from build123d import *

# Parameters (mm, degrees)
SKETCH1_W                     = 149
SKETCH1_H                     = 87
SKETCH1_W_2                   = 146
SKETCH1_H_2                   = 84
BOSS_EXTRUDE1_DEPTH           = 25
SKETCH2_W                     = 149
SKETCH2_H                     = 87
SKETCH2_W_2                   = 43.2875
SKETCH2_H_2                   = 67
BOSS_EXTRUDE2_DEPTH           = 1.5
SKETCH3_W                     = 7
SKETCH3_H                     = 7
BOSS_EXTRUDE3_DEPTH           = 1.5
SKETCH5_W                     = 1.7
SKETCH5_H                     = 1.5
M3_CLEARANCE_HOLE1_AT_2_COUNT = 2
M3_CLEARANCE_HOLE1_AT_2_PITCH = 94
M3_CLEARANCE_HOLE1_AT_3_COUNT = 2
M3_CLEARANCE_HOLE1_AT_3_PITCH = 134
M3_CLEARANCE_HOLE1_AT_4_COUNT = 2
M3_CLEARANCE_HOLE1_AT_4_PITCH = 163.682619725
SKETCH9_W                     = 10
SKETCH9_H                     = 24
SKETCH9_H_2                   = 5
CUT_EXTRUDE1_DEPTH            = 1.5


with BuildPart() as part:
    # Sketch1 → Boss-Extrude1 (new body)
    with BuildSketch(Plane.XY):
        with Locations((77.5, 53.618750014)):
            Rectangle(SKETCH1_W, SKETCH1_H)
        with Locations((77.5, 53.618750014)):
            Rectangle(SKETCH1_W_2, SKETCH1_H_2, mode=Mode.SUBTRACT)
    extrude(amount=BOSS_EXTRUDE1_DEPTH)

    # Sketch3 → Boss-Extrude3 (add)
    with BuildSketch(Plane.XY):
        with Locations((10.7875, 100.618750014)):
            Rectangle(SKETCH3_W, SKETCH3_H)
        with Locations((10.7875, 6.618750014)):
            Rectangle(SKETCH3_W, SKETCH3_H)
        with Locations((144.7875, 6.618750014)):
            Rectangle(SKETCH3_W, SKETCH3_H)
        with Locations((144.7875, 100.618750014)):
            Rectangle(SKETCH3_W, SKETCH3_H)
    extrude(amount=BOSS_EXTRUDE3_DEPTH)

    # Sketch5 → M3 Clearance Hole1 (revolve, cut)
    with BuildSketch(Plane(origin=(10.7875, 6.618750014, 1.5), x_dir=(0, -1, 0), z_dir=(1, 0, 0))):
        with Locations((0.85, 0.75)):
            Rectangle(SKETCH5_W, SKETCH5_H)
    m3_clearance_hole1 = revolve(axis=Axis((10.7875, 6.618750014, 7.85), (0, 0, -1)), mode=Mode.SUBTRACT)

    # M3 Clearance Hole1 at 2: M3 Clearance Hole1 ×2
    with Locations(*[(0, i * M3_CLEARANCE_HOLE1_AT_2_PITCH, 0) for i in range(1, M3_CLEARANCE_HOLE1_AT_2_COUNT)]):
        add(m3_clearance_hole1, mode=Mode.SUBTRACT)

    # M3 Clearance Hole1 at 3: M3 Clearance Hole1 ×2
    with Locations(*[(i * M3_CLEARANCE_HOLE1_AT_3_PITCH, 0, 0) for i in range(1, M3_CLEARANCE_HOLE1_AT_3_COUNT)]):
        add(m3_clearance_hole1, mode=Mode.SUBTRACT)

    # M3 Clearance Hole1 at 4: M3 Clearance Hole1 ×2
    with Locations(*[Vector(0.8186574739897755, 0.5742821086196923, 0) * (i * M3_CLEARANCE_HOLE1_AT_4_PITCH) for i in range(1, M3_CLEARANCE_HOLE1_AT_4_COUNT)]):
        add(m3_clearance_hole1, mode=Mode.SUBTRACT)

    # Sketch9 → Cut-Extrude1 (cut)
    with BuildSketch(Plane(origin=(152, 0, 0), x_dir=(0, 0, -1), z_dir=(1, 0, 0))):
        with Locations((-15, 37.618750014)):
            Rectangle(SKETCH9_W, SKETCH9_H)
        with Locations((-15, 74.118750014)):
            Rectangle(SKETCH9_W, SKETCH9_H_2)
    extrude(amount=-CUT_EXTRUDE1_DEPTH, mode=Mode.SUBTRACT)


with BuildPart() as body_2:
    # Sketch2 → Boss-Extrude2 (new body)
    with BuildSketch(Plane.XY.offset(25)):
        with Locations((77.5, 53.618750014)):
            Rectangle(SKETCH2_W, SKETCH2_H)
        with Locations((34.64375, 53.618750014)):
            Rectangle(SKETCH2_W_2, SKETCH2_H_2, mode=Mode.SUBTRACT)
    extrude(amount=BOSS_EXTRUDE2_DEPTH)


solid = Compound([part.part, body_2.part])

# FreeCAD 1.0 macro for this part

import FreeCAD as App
import Part
import Sketcher

V = App.Vector
Q = App.Units.Quantity


def add_polygon(sketch, points):
    """Adds a closed chain of lines whose ends are joined by coincident constraints."""
    first, n = sketch.GeometryCount, len(points)
    for a, b in zip(points, points[1:] + points[:1]):
        sketch.addGeometry(Part.LineSegment(App.Vector(*a, 0), App.Vector(*b, 0)), False)
    for i in range(n):
        sketch.addConstraint(Sketcher.Constraint("Coincident", first + i, 2, first + (i + 1) % n, 1))

doc = App.newDocument("Part")
body = doc.addObject("PartDesign::Body", "Body")

# Sketch on XY plane
sketch1 = doc.addObject("Sketcher::SketchObject", "Sketch")
body.addObject(sketch1)
sketch1.AttachmentSupport = (doc.XY_Plane, [""])
sketch1.MapMode = "FlatFace"
add_polygon(sketch1, [(3, 97), (3, 10), (152, 10), (152, 97)])  # lines 0-3
add_polygon(sketch1, [(150, 12), (4, 12), (4, 96), (150, 96)])  # lines 4-7
sketch1.addConstraint([
    Sketcher.Constraint("Vertical", 0),
    Sketcher.Constraint("Horizontal", 1),
    Sketcher.Constraint("Vertical", 2),
    Sketcher.Constraint("Horizontal", 3),
    Sketcher.Constraint("Horizontal", 4),
    Sketcher.Constraint("Vertical", 5),
    Sketcher.Constraint("Horizontal", 6),
    Sketcher.Constraint("Vertical", 7),
    Sketcher.Constraint("DistanceX", 1, 1, 1, 2, Q("149 mm")),
    Sketcher.Constraint("DistanceX", 4, 2, 4, 1, Q("146 mm")),
    Sketcher.Constraint("DistanceY", 0, 2, 0, 1, Q("87 mm")),
    Sketcher.Constraint("DistanceY", 5, 1, 5, 2, Q("84 mm")),
    Sketcher.Constraint("DistanceX", -1, 1, 0, 2, Q("3 mm")),
    Sketcher.Constraint("DistanceX", -1, 1, 4, 2, Q("4.5 mm")),
    Sketcher.Constraint("DistanceY", 0, 2, 4, 2, Q("1.5 mm")),
    Sketcher.Constraint("DistanceY", -1, 1, 0, 2, Q("10.11875 mm")),
])
pad1 = doc.addObject("PartDesign::Pad", "Pad")
body.addObject(pad1)
pad1.Profile = sketch1
pad1.Length = 25

# Sketch on XY plane
sketch2 = doc.addObject("Sketcher::SketchObject", "Sketch001")
body.addObject(sketch2)
sketch2.AttachmentSupport = (doc.XY_Plane, [""])
sketch2.MapMode = "FlatFace"
add_polygon(sketch2, [(7, 104), (7, 97), (14, 97), (14, 104)])  # lines 0-3
add_polygon(sketch2, [(7, 10), (7, 3), (14, 3), (14, 10)])  # lines 4-7
add_polygon(sketch2, [(141, 10), (141, 3), (148, 3), (148, 10)])  # lines 8-11
add_polygon(sketch2, [(141, 104), (141, 97), (148, 97), (148, 104)])  # lines 12-15
sketch2.addConstraint([
    Sketcher.Constraint("Vertical", 0),
    Sketcher.Constraint("Horizontal", 1),
    Sketcher.Constraint("Vertical", 2),
    Sketcher.Constraint("Horizontal", 3),
    Sketcher.Constraint("Vertical", 4),
    Sketcher.Constraint("Horizontal", 5),
    Sketcher.Constraint("Vertical", 6),
    Sketcher.Constraint("Horizontal", 7),
    Sketcher.Constraint("Vertical", 8),
    Sketcher.Constraint("Horizontal", 9),
    Sketcher.Constraint("Vertical", 10),
    Sketcher.Constraint("Horizontal", 11),
    Sketcher.Constraint("Vertical", 12),
    Sketcher.Constraint("Horizontal", 13),
    Sketcher.Constraint("Vertical", 14),
    Sketcher.Constraint("Horizontal", 15),
    Sketcher.Constraint("Horizontal", 5, 2, 8, 2),
    Sketcher.Constraint("Horizontal", 7, 2, 10, 2),
    Sketcher.Constraint("Horizontal", 1, 2, 12, 2),
    Sketcher.Constraint("Horizontal", 3, 2, 14, 2),
    Sketcher.Constraint("Vertical", 3, 2, 4, 2),
    Sketcher.Constraint("Vertical", 2, 2, 5, 2),
    Sketcher.Constraint("Vertical", 11, 2, 12, 2),
    Sketcher.Constraint("Vertical", 10, 2, 13, 2),
    Sketcher.Constraint("Equal", 7, 9),
    Sketcher.Constraint("Equal", 15, 0),
    Sketcher.Constraint("Equal", 2, 4),
    Sketcher.Constraint("DistanceX", 1, 1, 1, 2, Q("7 mm")),
    Sketcher.Constraint("DistanceY", 4, 2, 0, 2, Q("94 mm")),
    Sketcher.Constraint("DistanceX", 5, 2, 8, 2, Q("127 mm")),
    Sketcher.Constraint("DistanceX", -1, 1, 0, 2, Q("7.2875 mm")),
    Sketcher.Constraint("DistanceY", -1, 1, 0, 2, Q("97.11875 mm")),
])
pad2 = doc.addObject("PartDesign::Pad", "Pad001")
body.addObject(pad2)
pad2.Profile = sketch2
pad2.Length = 1.5

# Sketch on YZ plane
sketch3 = doc.addObject("Sketcher::SketchObject", "Sketch002")
body.addObject(sketch3)
sketch3.AttachmentSupport = (doc.YZ_Plane, [""])
sketch3.MapMode = "FlatFace"
sketch3.AttachmentOffset = App.Placement(V(0, 0, 10.7875), App.Rotation())
add_polygon(sketch3, [(6.6, 0), (6.6, 1.5), (4.9, 1.5), (4.9, 0)])  # lines 0-3
sketch3.addGeometry(Part.LineSegment(V(6.6, 1.5, 0), V(6.6, 0, 0)), True)  # axis
sketch3.addConstraint([
    Sketcher.Constraint("Vertical", 0),
    Sketcher.Constraint("Horizontal", 1),
    Sketcher.Constraint("Vertical", 2),
    Sketcher.Constraint("Horizontal", 3),
    Sketcher.Constraint("Vertical", 4),
    Sketcher.Constraint("Coincident", 4, 1, 0, 2),
    Sketcher.Constraint("PointOnObject", 2, 2, -1),
    Sketcher.Constraint("PointOnObject", 4, 2, -1),
    Sketcher.Constraint("DistanceX", 1, 2, 1, 1, Q("1.7 mm")),
    Sketcher.Constraint("DistanceY", 0, 1, 0, 2, Q("1.5 mm")),
    Sketcher.Constraint("DistanceX", -1, 1, 0, 2, Q("6.61875 mm")),
])
groove = doc.addObject("PartDesign::Groove", "Groove")
body.addObject(groove)
groove.Profile = sketch3
groove.ReferenceAxis = (sketch3, ["Axis0"])
groove.Angle = 360
doc.recompute()

linearpattern = doc.addObject("PartDesign::LinearPattern", "LinearPattern")
body.addObject(linearpattern)
linearpattern.Originals = [groove]
linearpattern.Direction = (doc.Y_Axis, [""])
linearpattern.Mode = "offset"
linearpattern.Offset = 94
linearpattern.Occurrences = 2
body.Tip = linearpattern
doc.recompute()

linearpattern2 = doc.addObject("PartDesign::LinearPattern", "LinearPattern001")
body.addObject(linearpattern2)
linearpattern2.Originals = [groove]
linearpattern2.Direction = (doc.X_Axis, [""])
linearpattern2.Mode = "offset"
linearpattern2.Offset = 134
linearpattern2.Occurrences = 2
body.Tip = linearpattern2
doc.recompute()

datumline = doc.addObject("PartDesign::Line", "DatumLine")
body.addObject(datumline)
datumline.Placement = App.Placement(V(0, 0, 0), App.Rotation(V(0, 0, 1), V(0.818657474, 0.574282109, 0)))
linearpattern3 = doc.addObject("PartDesign::LinearPattern", "LinearPattern002")
body.addObject(linearpattern3)
linearpattern3.Originals = [groove]
linearpattern3.Direction = (datumline, [""])
linearpattern3.Mode = "offset"
linearpattern3.Offset = 163.68262
linearpattern3.Occurrences = 2
body.Tip = linearpattern3

# Sketch on YZ plane
sketch4 = doc.addObject("Sketcher::SketchObject", "Sketch003")
body.addObject(sketch4)
sketch4.AttachmentSupport = (doc.YZ_Plane, [""])
sketch4.MapMode = "FlatFace"
sketch4.AttachmentOffset = App.Placement(V(0, 0, 152), App.Rotation())
add_polygon(sketch4, [(50, 20), (26, 20), (26, 10), (50, 10)])  # lines 0-3
add_polygon(sketch4, [(77, 20), (72, 20), (72, 10), (77, 10)])  # lines 4-7
sketch4.addConstraint([
    Sketcher.Constraint("Horizontal", 0),
    Sketcher.Constraint("Vertical", 1),
    Sketcher.Constraint("Horizontal", 2),
    Sketcher.Constraint("Vertical", 3),
    Sketcher.Constraint("Horizontal", 4),
    Sketcher.Constraint("Vertical", 5),
    Sketcher.Constraint("Horizontal", 6),
    Sketcher.Constraint("Vertical", 7),
    Sketcher.Constraint("Horizontal", 3, 2, 4, 2),
    Sketcher.Constraint("Horizontal", 2, 2, 5, 2),
    Sketcher.Constraint("DistanceX", 0, 2, 0, 1, Q("24 mm")),
    Sketcher.Constraint("DistanceX", 4, 2, 4, 1, Q("5 mm")),
    Sketcher.Constraint("DistanceY", 1, 2, 1, 1, Q("10 mm")),
    Sketcher.Constraint("DistanceY", -1, 1, 0, 2, Q("20 mm")),
    Sketcher.Constraint("DistanceX", 3, 2, 4, 2, Q("22 mm")),
    Sketcher.Constraint("DistanceX", -1, 1, 0, 2, Q("25.61875 mm")),
])
pocket1 = doc.addObject("PartDesign::Pocket", "Pocket")
body.addObject(pocket1)
pocket1.Profile = sketch4
pocket1.Length = 1.5
body2 = doc.addObject("PartDesign::Body", "Body001")

# Sketch on XY plane
sketch5 = doc.addObject("Sketcher::SketchObject", "Sketch004")
body2.addObject(sketch5)
sketch5.AttachmentSupport = (doc.getObject("XY_Plane001"), [""])
sketch5.MapMode = "FlatFace"
sketch5.AttachmentOffset = App.Placement(V(0, 0, 25), App.Rotation())
add_polygon(sketch5, [(3, 97), (3, 10), (152, 10), (152, 97)])  # lines 0-3
add_polygon(sketch5, [(56, 20), (13, 20), (13, 87), (56, 87)])  # lines 4-7
sketch5.addConstraint([
    Sketcher.Constraint("Vertical", 0),
    Sketcher.Constraint("Horizontal", 1),
    Sketcher.Constraint("Vertical", 2),
    Sketcher.Constraint("Horizontal", 3),
    Sketcher.Constraint("Horizontal", 4),
    Sketcher.Constraint("Vertical", 5),
    Sketcher.Constraint("Horizontal", 6),
    Sketcher.Constraint("Vertical", 7),
    Sketcher.Constraint("DistanceX", 1, 1, 1, 2, Q("149 mm")),
    Sketcher.Constraint("DistanceY", 0, 2, 0, 1, Q("87 mm")),
    Sketcher.Constraint("DistanceY", 5, 1, 5, 2, Q("67 mm")),
    Sketcher.Constraint("DistanceX", -1, 1, 0, 2, Q("3 mm")),
    Sketcher.Constraint("DistanceX", -1, 1, 4, 2, Q("13 mm")),
    Sketcher.Constraint("DistanceY", 0, 2, 4, 2, Q("10 mm")),
    Sketcher.Constraint("DistanceX", 4, 2, 4, 1, Q("43.2875 mm")),
    Sketcher.Constraint("DistanceY", -1, 1, 0, 2, Q("10.11875 mm")),
])
pad3 = doc.addObject("PartDesign::Pad", "Pad002")
body2.addObject(pad3)
pad3.Profile = sketch5
pad3.Length = 1.5

doc.recompute()
